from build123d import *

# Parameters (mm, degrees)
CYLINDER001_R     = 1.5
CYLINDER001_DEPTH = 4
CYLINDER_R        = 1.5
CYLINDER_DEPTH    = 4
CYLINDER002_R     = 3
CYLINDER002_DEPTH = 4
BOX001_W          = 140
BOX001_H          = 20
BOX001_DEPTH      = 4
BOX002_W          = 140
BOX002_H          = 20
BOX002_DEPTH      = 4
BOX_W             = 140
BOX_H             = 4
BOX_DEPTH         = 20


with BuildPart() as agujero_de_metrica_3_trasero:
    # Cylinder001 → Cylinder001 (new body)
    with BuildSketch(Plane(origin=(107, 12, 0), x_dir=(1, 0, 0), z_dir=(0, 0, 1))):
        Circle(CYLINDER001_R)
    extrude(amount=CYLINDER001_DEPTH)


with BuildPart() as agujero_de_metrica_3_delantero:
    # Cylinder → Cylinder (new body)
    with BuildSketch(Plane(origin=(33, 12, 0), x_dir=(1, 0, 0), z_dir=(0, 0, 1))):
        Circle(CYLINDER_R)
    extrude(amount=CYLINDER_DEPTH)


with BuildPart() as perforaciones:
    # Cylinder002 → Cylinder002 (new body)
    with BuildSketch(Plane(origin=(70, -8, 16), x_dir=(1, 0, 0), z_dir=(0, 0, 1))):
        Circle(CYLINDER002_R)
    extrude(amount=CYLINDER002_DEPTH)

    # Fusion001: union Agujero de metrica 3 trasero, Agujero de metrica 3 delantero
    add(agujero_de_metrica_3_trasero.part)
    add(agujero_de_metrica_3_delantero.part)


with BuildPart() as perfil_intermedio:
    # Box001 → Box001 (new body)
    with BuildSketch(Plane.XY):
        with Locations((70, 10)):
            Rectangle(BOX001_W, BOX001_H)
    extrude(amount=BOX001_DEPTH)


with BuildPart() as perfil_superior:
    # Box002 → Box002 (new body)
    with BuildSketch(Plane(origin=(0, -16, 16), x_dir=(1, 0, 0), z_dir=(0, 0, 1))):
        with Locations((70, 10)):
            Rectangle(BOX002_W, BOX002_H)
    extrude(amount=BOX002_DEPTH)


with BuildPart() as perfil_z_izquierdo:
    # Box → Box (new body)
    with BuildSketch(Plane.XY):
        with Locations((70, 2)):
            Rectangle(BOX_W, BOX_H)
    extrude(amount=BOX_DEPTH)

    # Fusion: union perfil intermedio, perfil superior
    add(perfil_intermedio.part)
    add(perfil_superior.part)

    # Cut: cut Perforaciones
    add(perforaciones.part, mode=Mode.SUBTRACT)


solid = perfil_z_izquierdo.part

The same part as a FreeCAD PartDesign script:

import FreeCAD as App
import Part
import Sketcher
from FreeCAD import Vector


def add_polygon(sketch, points):
    """Adds a closed chain of lines whose ends are joined by coincident constraints."""
    first, n = sketch.GeometryCount, len(points)
    for a, b in zip(points, points[1:] + points[:1]):
        sketch.addGeometry(Part.LineSegment(App.Vector(*a, 0), App.Vector(*b, 0)), False)
    for i in range(n):
        sketch.addConstraint(Sketcher.Constraint("Coincident", first + i, 2, first + (i + 1) % n, 1))

doc = App.newDocument("Part")
params = doc.addObject("Spreadsheet::Sheet", "Params")
for row, (alias, value) in enumerate([
    ("sketch1_diameter", "3 mm"),
    ("pad1_length", "4 mm"),
    ("sketch2_diameter", "3 mm"),
    ("pad2_length", "4 mm"),
    ("sketch3_diameter", "6 mm"),
    ("pad3_length", "4 mm"),
    ("sketch4_width", "140 mm"),
    ("sketch4_height", "20 mm"),
    ("pad4_length", "4 mm"),
    ("sketch5_width", "140 mm"),
    ("sketch5_height", "20 mm"),
    ("pad5_length", "4 mm"),
    ("sketch6_width", "140 mm"),
    ("sketch6_height", "4 mm"),
    ("pad6_length", "20 mm"),
], start=1):
    params.set(f"A{row}", alias)
    params.set(f"B{row}", "=" + value)
    params.setAlias(f"B{row}", alias)

body = doc.addObject("PartDesign::Body", "Body")

sketch1 = body.newObject("Sketcher::SketchObject", "Sketch")
sketch1.AttachmentSupport = (doc.getObject("XY_Plane"), [""])
sketch1.MapMode = "FlatFace"
sketch1.addGeometry(Part.Circle(Vector(107, 12, 0), Vector(0, 0, 1), 1.5), False)
sketch1.addConstraint(Sketcher.Constraint("Diameter", 0, 3.0))
sketch1.addConstraint(Sketcher.Constraint("DistanceX", -1, 1, 0, 3, 107.0))
sketch1.addConstraint(Sketcher.Constraint("DistanceY", -1, 1, 0, 3, 12.0))
sketch1.setExpression("Constraints[0]", "Params.sketch1_diameter")
pad1 = body.newObject("PartDesign::Pad", "Pad")
pad1.Profile = sketch1
pad1.setExpression("Length", "Params.pad1_length")
body2 = doc.addObject("PartDesign::Body", "Body001")

sketch2 = body2.newObject("Sketcher::SketchObject", "Sketch001")
sketch2.AttachmentSupport = (doc.getObject("XY_Plane001"), [""])
sketch2.MapMode = "FlatFace"
sketch2.addGeometry(Part.Circle(Vector(33, 12, 0), Vector(0, 0, 1), 1.5), False)
sketch2.addConstraint(Sketcher.Constraint("Diameter", 0, 3.0))
sketch2.addConstraint(Sketcher.Constraint("DistanceX", -1, 1, 0, 3, 33.0))
sketch2.addConstraint(Sketcher.Constraint("DistanceY", -1, 1, 0, 3, 12.0))
sketch2.setExpression("Constraints[0]", "Params.sketch2_diameter")
pad2 = body2.newObject("PartDesign::Pad", "Pad001")
pad2.Profile = sketch2
pad2.setExpression("Length", "Params.pad2_length")
body3 = doc.addObject("PartDesign::Body", "Body002")
body3.AllowCompound = True

sketch3 = body3.newObject("Sketcher::SketchObject", "Sketch002")
sketch3.AttachmentSupport = (doc.getObject("XY_Plane002"), [""])
sketch3.MapMode = "FlatFace"
sketch3.AttachmentOffset = App.Placement(Vector(0, 0, 16), App.Rotation())
sketch3.addGeometry(Part.Circle(Vector(70, -8, 0), Vector(0, 0, 1), 3), False)
sketch3.addConstraint(Sketcher.Constraint("Diameter", 0, 6.0))
sketch3.addConstraint(Sketcher.Constraint("DistanceX", -1, 1, 0, 3, 70.0))
sketch3.addConstraint(Sketcher.Constraint("DistanceY", 0, 3, -1, 1, 8.0))
sketch3.setExpression("Constraints[0]", "Params.sketch3_diameter")
pad3 = body3.newObject("PartDesign::Pad", "Pad002")
pad3.Profile = sketch3
pad3.setExpression("Length", "Params.pad3_length")
doc.recompute()

boolean = body3.newObject("PartDesign::Boolean", "Boolean")
boolean.Type = "Fuse"
boolean.addObjects([body])
doc.recompute()

boolean2 = body3.newObject("PartDesign::Boolean", "Boolean001")
boolean2.Type = "Fuse"
boolean2.addObjects([body2])
body4 = doc.addObject("PartDesign::Body", "Body003")

sketch4 = body4.newObject("Sketcher::SketchObject", "Sketch003")
sketch4.AttachmentSupport = (doc.getObject("XY_Plane003"), [""])
sketch4.MapMode = "FlatFace"
add_polygon(sketch4, [(0, 20), (0, 0), (140, 0), (140, 20)])
sketch4.addConstraint(Sketcher.Constraint("Vertical", 0))
sketch4.addConstraint(Sketcher.Constraint("Horizontal", 1))
sketch4.addConstraint(Sketcher.Constraint("Vertical", 2))
sketch4.addConstraint(Sketcher.Constraint("Horizontal", 3))
sketch4.addConstraint(Sketcher.Constraint("Coincident", 0, 2, -1, 1))
sketch4.addConstraint(Sketcher.Constraint("DistanceX", 1, 1, 1, 2, 140.0))
sketch4.addConstraint(Sketcher.Constraint("DistanceY", 0, 2, 0, 1, 20.0))
sketch4.setExpression("Constraints[9]", "Params.sketch4_width")
sketch4.setExpression("Constraints[10]", "Params.sketch4_height")
pad4 = body4.newObject("PartDesign::Pad", "Pad003")
pad4.Profile = sketch4
pad4.setExpression("Length", "Params.pad4_length")
body5 = doc.addObject("PartDesign::Body", "Body004")

sketch5 = body5.newObject("Sketcher::SketchObject", "Sketch004")
sketch5.AttachmentSupport = (doc.getObject("XY_Plane004"), [""])
sketch5.MapMode = "FlatFace"
sketch5.AttachmentOffset = App.Placement(Vector(0, 0, 16), App.Rotation())
add_polygon(sketch5, [(0, 4), (0, -16), (140, -16), (140, 4)])
sketch5.addConstraint(Sketcher.Constraint("Vertical", 0))
sketch5.addConstraint(Sketcher.Constraint("Horizontal", 1))
sketch5.addConstraint(Sketcher.Constraint("Vertical", 2))
sketch5.addConstraint(Sketcher.Constraint("Horizontal", 3))
sketch5.addConstraint(Sketcher.Constraint("PointOnObject", 0, 2, -2))
sketch5.addConstraint(Sketcher.Constraint("DistanceX", 1, 1, 1, 2, 140.0))
sketch5.addConstraint(Sketcher.Constraint("DistanceY", 0, 2, 0, 1, 20.0))
sketch5.addConstraint(Sketcher.Constraint("DistanceY", 0, 2, -1, 1, 16.0))
sketch5.setExpression("Constraints[9]", "Params.sketch5_width")
sketch5.setExpression("Constraints[10]", "Params.sketch5_height")
pad5 = body5.newObject("PartDesign::Pad", "Pad004")
pad5.Profile = sketch5
pad5.setExpression("Length", "Params.pad5_length")
body6 = doc.addObject("PartDesign::Body", "Body005")

sketch6 = body6.newObject("Sketcher::SketchObject", "Sketch005")
sketch6.AttachmentSupport = (doc.getObject("XY_Plane005"), [""])
sketch6.MapMode = "FlatFace"
add_polygon(sketch6, [(0, 4), (0, 0), (140, 0), (140, 4)])
sketch6.addConstraint(Sketcher.Constraint("Vertical", 0))
sketch6.addConstraint(Sketcher.Constraint("Horizontal", 1))
sketch6.addConstraint(Sketcher.Constraint("Vertical", 2))
sketch6.addConstraint(Sketcher.Constraint("Horizontal", 3))
sketch6.addConstraint(Sketcher.Constraint("Coincident", 0, 2, -1, 1))
sketch6.addConstraint(Sketcher.Constraint("DistanceX", 1, 1, 1, 2, 140.0))
sketch6.addConstraint(Sketcher.Constraint("DistanceY", 0, 2, 0, 1, 4.0))
sketch6.setExpression("Constraints[9]", "Params.sketch6_width")
sketch6.setExpression("Constraints[10]", "Params.sketch6_height")
pad6 = body6.newObject("PartDesign::Pad", "Pad005")
pad6.Profile = sketch6
pad6.setExpression("Length", "Params.pad6_length")
doc.recompute()

boolean3 = body6.newObject("PartDesign::Boolean", "Boolean002")
boolean3.Type = "Fuse"
boolean3.addObjects([body4])
doc.recompute()

boolean4 = body6.newObject("PartDesign::Boolean", "Boolean003")
boolean4.Type = "Fuse"
boolean4.addObjects([body5])
doc.recompute()

boolean5 = body6.newObject("PartDesign::Boolean", "Boolean004")
boolean5.Type = "Cut"
boolean5.addObjects([body3])

doc.recompute()
